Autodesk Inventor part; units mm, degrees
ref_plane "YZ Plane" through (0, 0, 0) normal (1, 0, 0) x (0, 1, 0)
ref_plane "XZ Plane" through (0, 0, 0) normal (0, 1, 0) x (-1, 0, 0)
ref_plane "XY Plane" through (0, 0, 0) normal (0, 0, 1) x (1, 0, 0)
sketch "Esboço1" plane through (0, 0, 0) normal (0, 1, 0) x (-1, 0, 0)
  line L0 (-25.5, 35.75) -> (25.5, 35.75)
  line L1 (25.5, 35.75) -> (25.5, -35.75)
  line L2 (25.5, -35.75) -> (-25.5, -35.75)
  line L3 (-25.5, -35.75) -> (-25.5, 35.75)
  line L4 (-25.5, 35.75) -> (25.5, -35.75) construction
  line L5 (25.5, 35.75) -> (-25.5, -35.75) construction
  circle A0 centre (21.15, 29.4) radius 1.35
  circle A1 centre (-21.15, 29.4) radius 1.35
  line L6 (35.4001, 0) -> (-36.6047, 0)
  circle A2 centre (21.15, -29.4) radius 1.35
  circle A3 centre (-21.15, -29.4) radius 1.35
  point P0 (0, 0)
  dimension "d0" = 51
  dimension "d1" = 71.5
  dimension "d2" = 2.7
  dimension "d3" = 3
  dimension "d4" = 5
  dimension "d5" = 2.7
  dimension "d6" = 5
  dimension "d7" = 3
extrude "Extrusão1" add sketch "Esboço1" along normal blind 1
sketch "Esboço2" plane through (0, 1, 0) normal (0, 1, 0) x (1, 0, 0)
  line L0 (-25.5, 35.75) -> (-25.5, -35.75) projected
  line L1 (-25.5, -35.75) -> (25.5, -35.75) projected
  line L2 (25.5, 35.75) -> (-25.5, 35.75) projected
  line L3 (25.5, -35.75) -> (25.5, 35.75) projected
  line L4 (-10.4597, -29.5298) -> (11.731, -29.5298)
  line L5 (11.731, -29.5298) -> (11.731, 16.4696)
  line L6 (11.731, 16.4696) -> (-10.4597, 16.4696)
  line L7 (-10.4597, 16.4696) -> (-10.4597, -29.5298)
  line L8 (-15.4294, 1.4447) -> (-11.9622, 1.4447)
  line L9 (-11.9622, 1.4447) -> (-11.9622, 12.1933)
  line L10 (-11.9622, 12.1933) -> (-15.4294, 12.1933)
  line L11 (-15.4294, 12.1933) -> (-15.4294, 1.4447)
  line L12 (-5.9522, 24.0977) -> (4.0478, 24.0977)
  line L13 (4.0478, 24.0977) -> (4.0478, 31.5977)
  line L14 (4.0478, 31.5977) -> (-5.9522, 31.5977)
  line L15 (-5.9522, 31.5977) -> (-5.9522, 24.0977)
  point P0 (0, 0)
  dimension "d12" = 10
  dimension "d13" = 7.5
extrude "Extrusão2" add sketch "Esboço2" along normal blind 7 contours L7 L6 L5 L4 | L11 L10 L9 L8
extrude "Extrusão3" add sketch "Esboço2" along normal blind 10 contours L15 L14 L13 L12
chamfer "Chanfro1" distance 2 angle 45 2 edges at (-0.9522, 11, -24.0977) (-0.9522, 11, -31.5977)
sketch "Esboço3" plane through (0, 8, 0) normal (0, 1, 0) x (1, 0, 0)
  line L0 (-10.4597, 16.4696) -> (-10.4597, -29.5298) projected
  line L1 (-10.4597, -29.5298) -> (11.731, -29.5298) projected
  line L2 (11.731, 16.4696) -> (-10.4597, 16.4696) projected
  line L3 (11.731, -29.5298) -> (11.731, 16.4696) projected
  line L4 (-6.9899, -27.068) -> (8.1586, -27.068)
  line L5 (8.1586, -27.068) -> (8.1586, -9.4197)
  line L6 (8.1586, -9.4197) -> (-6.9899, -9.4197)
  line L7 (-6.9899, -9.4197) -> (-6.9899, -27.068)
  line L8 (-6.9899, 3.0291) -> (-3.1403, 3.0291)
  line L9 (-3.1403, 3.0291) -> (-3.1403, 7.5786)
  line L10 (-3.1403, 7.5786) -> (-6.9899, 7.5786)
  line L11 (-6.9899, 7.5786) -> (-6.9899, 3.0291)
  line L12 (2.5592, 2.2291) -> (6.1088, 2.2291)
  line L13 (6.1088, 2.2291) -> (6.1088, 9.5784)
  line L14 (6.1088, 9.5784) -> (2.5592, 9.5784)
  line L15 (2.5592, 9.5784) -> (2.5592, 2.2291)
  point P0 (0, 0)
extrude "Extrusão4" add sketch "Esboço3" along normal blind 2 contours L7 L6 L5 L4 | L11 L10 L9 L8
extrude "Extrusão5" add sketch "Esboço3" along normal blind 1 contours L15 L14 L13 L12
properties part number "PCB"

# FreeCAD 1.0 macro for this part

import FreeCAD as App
import Part
import Sketcher
from FreeCAD import Vector


def edges_at(feature, points):
    """Names of the edges that pass closest to the given points."""
    edges = feature.Shape.Edges
    near = lambda p: min(range(len(edges)), key=lambda i: edges[i].distToShape(Part.Vertex(*p))[0])
    return sorted({f"Edge{near(p) + 1}" for p in points})


def add_polygon(sketch, points):
    """Adds a closed chain of lines whose ends are joined by coincident constraints."""
    first, n = sketch.GeometryCount, len(points)
    for a, b in zip(points, points[1:] + points[:1]):
        sketch.addGeometry(Part.LineSegment(App.Vector(*a, 0), App.Vector(*b, 0)), False)
    for i in range(n):
        sketch.addConstraint(Sketcher.Constraint("Coincident", first + i, 2, first + (i + 1) % n, 1))

doc = App.newDocument("Part")
body = doc.addObject("PartDesign::Body", "Body")

sketch1 = body.newObject("Sketcher::SketchObject", "Sketch")
sketch1.AttachmentSupport = (doc.getObject("XZ_Plane"), [""])
sketch1.MapMode = "FlatFace"
add_polygon(sketch1, [(-25.5, 35.8), (25.5, 35.8), (25.5, -35.8), (-25.5, -35.8)])
sketch1.addGeometry(Part.Circle(Vector(21.1, 29.4, 0), Vector(0, 0, 1), 1.4), False)
sketch1.addGeometry(Part.Circle(Vector(-21.1, 29.4, 0), Vector(0, 0, 1), 1.4), False)
sketch1.addGeometry(Part.Circle(Vector(-21.1, -29.4, 0), Vector(0, 0, 1), 1.4), False)
sketch1.addGeometry(Part.Circle(Vector(21.1, -29.4, 0), Vector(0, 0, 1), 1.4), False)
sketch1.addConstraint([
    Sketcher.Constraint("Horizontal", 0),
    Sketcher.Constraint("Vertical", 1),
    Sketcher.Constraint("Horizontal", 2),
    Sketcher.Constraint("Vertical", 3),
    Sketcher.Constraint("Equal", 4, 5),
    Sketcher.Constraint("Equal", 5, 6),
    Sketcher.Constraint("Equal", 6, 7),
    Sketcher.Constraint("Symmetric", 4, 3, 6, 3, -1, 1),
    Sketcher.Constraint("Symmetric", 5, 3, 7, 3, -1, 1),
    Sketcher.Constraint("Symmetric", 0, 2, 2, 2, -1, 1),
    Sketcher.Constraint("Symmetric", 4, 3, 5, 3, -2),
    Sketcher.Constraint("Diameter", 4, 2.7),
    Sketcher.Constraint("DistanceX", 0, 1, 0, 2, 51.0),
    Sketcher.Constraint("DistanceY", 1, 2, 1, 1, 71.5),
    Sketcher.Constraint("DistanceY", -1, 1, 4, 3, 29.4),
    Sketcher.Constraint("DistanceX", 5, 3, 4, 3, 42.3),
])
pad1 = body.newObject("PartDesign::Pad", "Pad")
pad1.Profile = sketch1
pad1.Length = 1
pad1.Reversed = True

sketch2 = body.newObject("Sketcher::SketchObject", "Sketch001")
sketch2.AttachmentSupport = (doc.getObject("XZ_Plane"), [""])
sketch2.MapMode = "FlatFace"
sketch2.AttachmentOffset = App.Placement(Vector(0, 0, -1), App.Rotation())
add_polygon(sketch2, [(-10.5, -16.5), (-10.5, 29.5), (11.7, 29.5), (11.7, -16.5)])
add_polygon(sketch2, [(-15.4, -12.2), (-15.4, -1.4), (-12, -1.4), (-12, -12.2)])
sketch2.addConstraint([
    Sketcher.Constraint("Vertical", 0),
    Sketcher.Constraint("Horizontal", 1),
    Sketcher.Constraint("Vertical", 2),
    Sketcher.Constraint("Horizontal", 3),
    Sketcher.Constraint("Vertical", 4),
    Sketcher.Constraint("Horizontal", 5),
    Sketcher.Constraint("Vertical", 6),
    Sketcher.Constraint("Horizontal", 7),
    Sketcher.Constraint("DistanceX", 1, 1, 1, 2, 22.1907),
    Sketcher.Constraint("DistanceX", 5, 1, 5, 2, 3.4672),
    Sketcher.Constraint("DistanceY", 0, 1, 0, 2, 45.9994),
    Sketcher.Constraint("DistanceY", 4, 1, 4, 2, 10.7486),
    Sketcher.Constraint("DistanceX", -1, 1, 1, 2, 11.731),
    Sketcher.Constraint("DistanceY", 3, 2, 4, 2, 15.025),
    Sketcher.Constraint("DistanceY", -1, 1, 0, 2, 29.5298),
    Sketcher.Constraint("DistanceX", 4, 2, -1, 1, 15.4294),
])
pad2 = body.newObject("PartDesign::Pad", "Pad001")
pad2.Profile = sketch2
pad2.Length = 7
pad2.Reversed = True

sketch3 = body.newObject("Sketcher::SketchObject", "Sketch002")
sketch3.AttachmentSupport = (doc.getObject("XZ_Plane"), [""])
sketch3.MapMode = "FlatFace"
sketch3.AttachmentOffset = App.Placement(Vector(0, 0, -1), App.Rotation())
add_polygon(sketch3, [(-6, -32), (-6, -24), (4, -24), (4, -32)])
sketch3.addConstraint([
    Sketcher.Constraint("Vertical", 0),
    Sketcher.Constraint("Horizontal", 1),
    Sketcher.Constraint("Vertical", 2),
    Sketcher.Constraint("Horizontal", 3),
    Sketcher.Constraint("DistanceX", 1, 1, 1, 2, 10.0),
    Sketcher.Constraint("DistanceY", 0, 1, 0, 2, 7.5),
    Sketcher.Constraint("DistanceX", 0, 2, -1, 1, 5.9522),
    Sketcher.Constraint("DistanceY", 0, 2, -1, 1, 24.0977),
])
pad3 = body.newObject("PartDesign::Pad", "Pad002")
pad3.Profile = sketch3
pad3.Length = 10
pad3.Reversed = True
doc.recompute()

chamfer = body.newObject("PartDesign::Chamfer", "Chamfer")
chamfer.Base = (pad3, edges_at(pad3, [(-0.952, 11, -24.098), (-0.952, 11, -31.598)]))
chamfer.Size = 2

sketch4 = body.newObject("Sketcher::SketchObject", "Sketch003")
sketch4.AttachmentSupport = (doc.getObject("XZ_Plane"), [""])
sketch4.MapMode = "FlatFace"
sketch4.AttachmentOffset = App.Placement(Vector(0, 0, -8), App.Rotation())
add_polygon(sketch4, [(-7, 9.4), (-7, 27.1), (8.2, 27.1), (8.2, 9.4)])
add_polygon(sketch4, [(-7, -7.6), (-7, -3), (-3.1, -3), (-3.1, -7.6)])
sketch4.addConstraint([
    Sketcher.Constraint("Vertical", 0),
    Sketcher.Constraint("Horizontal", 1),
    Sketcher.Constraint("Vertical", 2),
    Sketcher.Constraint("Horizontal", 3),
    Sketcher.Constraint("Vertical", 4),
    Sketcher.Constraint("Horizontal", 5),
    Sketcher.Constraint("Vertical", 6),
    Sketcher.Constraint("Horizontal", 7),
    Sketcher.Constraint("Vertical", 3, 2, 4, 2),
    Sketcher.Constraint("DistanceX", 0, 2, -1, 1, 6.99),
    Sketcher.Constraint("DistanceX", 1, 1, 1, 2, 15.1485),
    Sketcher.Constraint("DistanceX", 5, 1, 5, 2, 3.8496),
    Sketcher.Constraint("DistanceY", 0, 1, 0, 2, 17.6483),
    Sketcher.Constraint("DistanceY", 4, 1, 4, 2, 4.5495),
    Sketcher.Constraint("DistanceY", -1, 1, 0, 2, 27.068),
    Sketcher.Constraint("DistanceY", 4, 2, -1, 1, 3.029),
])
pad4 = body.newObject("PartDesign::Pad", "Pad003")
pad4.Profile = sketch4
pad4.Length = 2
pad4.Reversed = True

sketch5 = body.newObject("Sketcher::SketchObject", "Sketch004")
sketch5.AttachmentSupport = (doc.getObject("XZ_Plane"), [""])
sketch5.MapMode = "FlatFace"
sketch5.AttachmentOffset = App.Placement(Vector(0, 0, -8), App.Rotation())
add_polygon(sketch5, [(2.6, -9.6), (2.6, -2.2), (6.1, -2.2), (6.1, -9.6)])
sketch5.addConstraint([
    Sketcher.Constraint("Vertical", 0),
    Sketcher.Constraint("Horizontal", 1),
    Sketcher.Constraint("Vertical", 2),
    Sketcher.Constraint("Horizontal", 3),
    Sketcher.Constraint("DistanceX", 1, 1, 1, 2, 3.5496),
    Sketcher.Constraint("DistanceY", 0, 1, 0, 2, 7.3493),
    Sketcher.Constraint("DistanceY", 0, 2, -1, 1, 2.229),
    Sketcher.Constraint("DistanceX", -1, 1, 0, 2, 2.5592),
])
pad5 = body.newObject("PartDesign::Pad", "Pad004")
pad5.Profile = sketch5
pad5.Length = 1
pad5.Reversed = True

doc.recompute()
